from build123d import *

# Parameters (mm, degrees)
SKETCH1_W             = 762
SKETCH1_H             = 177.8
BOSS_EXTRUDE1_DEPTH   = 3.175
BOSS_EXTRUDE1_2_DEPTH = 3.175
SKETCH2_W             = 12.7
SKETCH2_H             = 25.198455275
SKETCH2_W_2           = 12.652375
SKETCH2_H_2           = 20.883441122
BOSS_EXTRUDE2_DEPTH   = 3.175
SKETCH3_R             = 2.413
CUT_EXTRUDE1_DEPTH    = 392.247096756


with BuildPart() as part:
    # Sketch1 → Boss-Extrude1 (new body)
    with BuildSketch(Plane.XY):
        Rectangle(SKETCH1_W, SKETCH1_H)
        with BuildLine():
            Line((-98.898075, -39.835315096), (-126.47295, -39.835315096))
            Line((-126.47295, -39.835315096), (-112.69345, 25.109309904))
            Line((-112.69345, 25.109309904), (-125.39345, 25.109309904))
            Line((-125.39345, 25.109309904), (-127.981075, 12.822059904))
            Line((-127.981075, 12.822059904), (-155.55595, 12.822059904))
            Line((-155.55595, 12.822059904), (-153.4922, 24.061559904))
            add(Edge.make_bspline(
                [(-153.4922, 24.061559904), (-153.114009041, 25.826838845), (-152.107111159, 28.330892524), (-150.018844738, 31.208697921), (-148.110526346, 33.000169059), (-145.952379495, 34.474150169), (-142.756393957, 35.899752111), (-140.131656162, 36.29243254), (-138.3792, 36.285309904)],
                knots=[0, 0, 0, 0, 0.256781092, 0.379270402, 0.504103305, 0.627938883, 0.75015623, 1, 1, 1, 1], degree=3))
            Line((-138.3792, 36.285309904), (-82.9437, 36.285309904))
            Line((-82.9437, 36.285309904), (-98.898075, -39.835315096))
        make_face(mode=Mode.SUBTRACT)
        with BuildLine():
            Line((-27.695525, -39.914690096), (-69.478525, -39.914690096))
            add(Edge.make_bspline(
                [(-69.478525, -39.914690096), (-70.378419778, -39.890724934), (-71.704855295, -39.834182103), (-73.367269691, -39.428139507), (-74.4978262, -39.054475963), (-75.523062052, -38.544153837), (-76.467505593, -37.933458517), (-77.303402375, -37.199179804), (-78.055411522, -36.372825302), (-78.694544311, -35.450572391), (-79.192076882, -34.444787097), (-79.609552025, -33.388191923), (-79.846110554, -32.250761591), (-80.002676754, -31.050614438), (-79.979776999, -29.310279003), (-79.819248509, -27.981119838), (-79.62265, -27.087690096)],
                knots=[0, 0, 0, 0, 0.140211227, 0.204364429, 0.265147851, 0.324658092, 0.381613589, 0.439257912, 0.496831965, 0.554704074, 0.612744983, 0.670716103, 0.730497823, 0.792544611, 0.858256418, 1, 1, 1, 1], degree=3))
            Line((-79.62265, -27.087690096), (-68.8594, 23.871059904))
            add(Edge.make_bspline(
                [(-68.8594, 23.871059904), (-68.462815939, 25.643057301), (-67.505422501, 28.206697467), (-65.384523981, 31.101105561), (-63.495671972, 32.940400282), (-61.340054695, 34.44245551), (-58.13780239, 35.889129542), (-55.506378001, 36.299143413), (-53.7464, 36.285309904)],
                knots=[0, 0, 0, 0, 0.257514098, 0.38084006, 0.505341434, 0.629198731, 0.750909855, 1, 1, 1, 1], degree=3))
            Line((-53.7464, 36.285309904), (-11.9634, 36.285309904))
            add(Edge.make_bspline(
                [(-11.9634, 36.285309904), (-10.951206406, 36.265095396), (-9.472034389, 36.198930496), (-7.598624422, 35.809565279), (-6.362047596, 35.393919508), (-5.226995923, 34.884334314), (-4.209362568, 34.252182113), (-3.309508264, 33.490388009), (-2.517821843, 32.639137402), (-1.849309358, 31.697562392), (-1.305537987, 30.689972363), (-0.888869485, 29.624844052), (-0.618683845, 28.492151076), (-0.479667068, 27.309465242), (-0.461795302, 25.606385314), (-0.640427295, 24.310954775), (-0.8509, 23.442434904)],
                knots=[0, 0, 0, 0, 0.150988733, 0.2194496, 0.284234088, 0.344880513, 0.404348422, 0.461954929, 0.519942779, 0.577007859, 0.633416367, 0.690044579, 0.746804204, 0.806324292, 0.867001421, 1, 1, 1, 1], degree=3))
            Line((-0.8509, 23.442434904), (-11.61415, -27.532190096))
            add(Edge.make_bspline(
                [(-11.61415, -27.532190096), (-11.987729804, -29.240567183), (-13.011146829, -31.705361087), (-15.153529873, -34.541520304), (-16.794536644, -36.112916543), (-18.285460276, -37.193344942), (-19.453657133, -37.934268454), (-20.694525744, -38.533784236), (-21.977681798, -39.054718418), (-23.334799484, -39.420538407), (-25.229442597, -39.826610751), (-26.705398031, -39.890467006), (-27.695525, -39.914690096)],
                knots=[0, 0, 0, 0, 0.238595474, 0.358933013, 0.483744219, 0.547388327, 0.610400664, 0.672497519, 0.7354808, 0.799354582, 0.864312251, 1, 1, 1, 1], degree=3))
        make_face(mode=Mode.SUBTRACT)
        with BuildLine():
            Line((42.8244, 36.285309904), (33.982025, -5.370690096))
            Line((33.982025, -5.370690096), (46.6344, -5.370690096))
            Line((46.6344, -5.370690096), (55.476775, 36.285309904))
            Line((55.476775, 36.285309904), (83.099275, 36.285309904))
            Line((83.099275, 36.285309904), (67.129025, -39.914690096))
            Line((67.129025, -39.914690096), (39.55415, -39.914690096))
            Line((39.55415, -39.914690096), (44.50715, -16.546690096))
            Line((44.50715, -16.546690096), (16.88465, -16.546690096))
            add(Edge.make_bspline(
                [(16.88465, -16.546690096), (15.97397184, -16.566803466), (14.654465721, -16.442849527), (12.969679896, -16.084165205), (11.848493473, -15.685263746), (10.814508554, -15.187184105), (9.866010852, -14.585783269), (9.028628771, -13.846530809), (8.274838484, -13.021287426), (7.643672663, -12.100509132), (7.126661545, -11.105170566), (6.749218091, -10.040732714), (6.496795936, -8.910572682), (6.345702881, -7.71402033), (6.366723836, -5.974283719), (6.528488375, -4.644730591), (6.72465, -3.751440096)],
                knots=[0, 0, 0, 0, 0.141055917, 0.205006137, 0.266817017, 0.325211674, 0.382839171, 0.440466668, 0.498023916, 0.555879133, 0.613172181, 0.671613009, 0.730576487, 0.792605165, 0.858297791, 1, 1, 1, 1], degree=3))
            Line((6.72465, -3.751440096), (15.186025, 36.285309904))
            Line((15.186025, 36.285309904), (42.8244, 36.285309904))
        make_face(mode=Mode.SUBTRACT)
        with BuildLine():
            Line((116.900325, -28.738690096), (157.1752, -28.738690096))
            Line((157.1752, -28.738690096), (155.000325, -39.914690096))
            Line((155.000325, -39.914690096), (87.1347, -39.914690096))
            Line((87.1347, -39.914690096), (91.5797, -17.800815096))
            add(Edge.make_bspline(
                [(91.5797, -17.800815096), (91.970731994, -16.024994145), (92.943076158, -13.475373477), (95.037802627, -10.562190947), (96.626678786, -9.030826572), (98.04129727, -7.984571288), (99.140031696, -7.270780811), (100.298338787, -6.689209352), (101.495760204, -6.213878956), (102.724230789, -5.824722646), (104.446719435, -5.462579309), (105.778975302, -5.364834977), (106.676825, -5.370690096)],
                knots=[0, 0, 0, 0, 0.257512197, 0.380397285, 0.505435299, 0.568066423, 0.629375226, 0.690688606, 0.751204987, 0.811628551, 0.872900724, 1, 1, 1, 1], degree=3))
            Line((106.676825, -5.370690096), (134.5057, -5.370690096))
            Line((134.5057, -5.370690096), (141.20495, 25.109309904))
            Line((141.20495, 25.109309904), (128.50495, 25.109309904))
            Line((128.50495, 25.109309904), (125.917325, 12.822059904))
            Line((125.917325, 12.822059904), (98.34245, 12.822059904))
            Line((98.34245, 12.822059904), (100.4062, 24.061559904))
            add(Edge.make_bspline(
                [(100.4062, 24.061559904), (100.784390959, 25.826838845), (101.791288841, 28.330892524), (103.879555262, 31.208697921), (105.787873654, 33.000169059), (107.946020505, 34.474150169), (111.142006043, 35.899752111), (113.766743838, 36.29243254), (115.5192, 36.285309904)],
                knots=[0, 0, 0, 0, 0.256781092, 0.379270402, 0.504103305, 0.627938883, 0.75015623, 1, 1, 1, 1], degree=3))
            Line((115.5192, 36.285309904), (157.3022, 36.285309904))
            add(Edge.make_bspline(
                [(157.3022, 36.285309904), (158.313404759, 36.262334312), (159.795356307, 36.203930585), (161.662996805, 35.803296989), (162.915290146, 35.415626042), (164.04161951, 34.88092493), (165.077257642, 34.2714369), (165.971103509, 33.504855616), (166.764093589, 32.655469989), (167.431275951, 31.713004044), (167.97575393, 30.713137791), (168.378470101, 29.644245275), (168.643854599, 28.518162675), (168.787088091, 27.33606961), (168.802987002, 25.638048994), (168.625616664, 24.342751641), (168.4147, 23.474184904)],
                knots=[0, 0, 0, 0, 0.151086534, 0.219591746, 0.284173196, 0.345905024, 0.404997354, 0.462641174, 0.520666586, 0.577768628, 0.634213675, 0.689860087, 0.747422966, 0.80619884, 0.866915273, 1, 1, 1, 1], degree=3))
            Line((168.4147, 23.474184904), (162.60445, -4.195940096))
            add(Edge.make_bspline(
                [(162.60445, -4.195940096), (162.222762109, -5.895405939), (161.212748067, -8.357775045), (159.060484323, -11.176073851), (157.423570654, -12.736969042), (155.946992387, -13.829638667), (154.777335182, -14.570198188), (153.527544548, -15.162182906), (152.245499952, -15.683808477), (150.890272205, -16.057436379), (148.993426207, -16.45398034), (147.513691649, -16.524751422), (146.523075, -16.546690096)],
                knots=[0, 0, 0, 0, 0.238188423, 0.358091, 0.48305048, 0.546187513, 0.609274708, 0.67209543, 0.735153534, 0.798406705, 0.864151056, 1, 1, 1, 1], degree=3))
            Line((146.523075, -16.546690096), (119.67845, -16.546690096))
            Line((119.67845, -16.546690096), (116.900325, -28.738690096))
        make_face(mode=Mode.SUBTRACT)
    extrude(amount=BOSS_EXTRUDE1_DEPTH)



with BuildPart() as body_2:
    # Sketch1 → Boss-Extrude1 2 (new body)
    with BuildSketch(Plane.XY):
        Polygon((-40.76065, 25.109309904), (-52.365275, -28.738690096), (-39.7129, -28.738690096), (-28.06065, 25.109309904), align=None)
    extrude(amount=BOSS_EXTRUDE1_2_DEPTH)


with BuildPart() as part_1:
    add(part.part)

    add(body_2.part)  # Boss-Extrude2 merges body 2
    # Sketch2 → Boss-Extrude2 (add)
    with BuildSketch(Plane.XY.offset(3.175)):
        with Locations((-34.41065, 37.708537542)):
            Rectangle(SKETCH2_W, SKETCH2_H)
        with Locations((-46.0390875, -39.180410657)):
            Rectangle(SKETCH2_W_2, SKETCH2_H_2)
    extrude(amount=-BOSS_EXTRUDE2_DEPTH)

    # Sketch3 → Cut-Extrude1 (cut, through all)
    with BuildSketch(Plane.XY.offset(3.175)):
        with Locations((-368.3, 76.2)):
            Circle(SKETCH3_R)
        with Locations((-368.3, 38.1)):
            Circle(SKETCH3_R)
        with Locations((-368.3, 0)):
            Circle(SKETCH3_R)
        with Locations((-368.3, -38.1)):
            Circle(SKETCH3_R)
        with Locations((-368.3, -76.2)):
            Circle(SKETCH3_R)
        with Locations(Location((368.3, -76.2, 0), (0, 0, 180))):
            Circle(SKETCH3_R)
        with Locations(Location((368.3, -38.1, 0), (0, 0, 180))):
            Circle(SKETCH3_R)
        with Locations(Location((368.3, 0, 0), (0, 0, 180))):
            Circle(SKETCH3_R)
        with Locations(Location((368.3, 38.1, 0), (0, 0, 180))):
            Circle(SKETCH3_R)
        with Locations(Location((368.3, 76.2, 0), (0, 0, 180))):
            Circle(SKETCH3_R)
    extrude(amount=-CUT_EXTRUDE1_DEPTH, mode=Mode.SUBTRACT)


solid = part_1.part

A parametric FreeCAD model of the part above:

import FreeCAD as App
import Part
import Sketcher
from FreeCAD import Vector
Q = App.Units.Quantity

doc = App.newDocument("Part")
body = doc.addObject("PartDesign::Body", "Body")

# Sketch on XY plane
sketch1 = body.newObject("Sketcher::SketchObject", "Sketch")
sketch1.AttachmentSupport = (doc.getObject("XY_Plane"), [""])
sketch1.MapMode = "FlatFace"
sketch1.addGeometry(Part.LineSegment(Vector(-381, 88.9, 0), Vector(-381, -88.9, 0)), False)
sketch1.addGeometry(Part.LineSegment(Vector(-381, -88.9, 0), Vector(381, -88.9, 0)), False)
sketch1.addGeometry(Part.LineSegment(Vector(381, -88.9, 0), Vector(381, 88.9, 0)), False)
sketch1.addGeometry(Part.LineSegment(Vector(381, 88.9, 0), Vector(-381, 88.9, 0)), False)
sketch1.addGeometry(Part.LineSegment(Vector(15.186025, 36.28531, 0), Vector(42.8244, 36.28531, 0)), False)
sketch1.addGeometry(Part.LineSegment(Vector(42.8244, 36.28531, 0), Vector(33.982025, -5.37069, 0)), False)
sketch1.addGeometry(Part.LineSegment(Vector(33.982025, -5.37069, 0), Vector(46.6344, -5.37069, 0)), False)
sketch1.addGeometry(Part.LineSegment(Vector(46.6344, -5.37069, 0), Vector(55.476775, 36.28531, 0)), False)
sketch1.addGeometry(Part.LineSegment(Vector(55.476775, 36.28531, 0), Vector(83.099275, 36.28531, 0)), False)
sketch1.addGeometry(Part.LineSegment(Vector(83.099275, 36.28531, 0), Vector(67.129025, -39.91469, 0)), False)
sketch1.addGeometry(Part.LineSegment(Vector(67.129025, -39.91469, 0), Vector(39.55415, -39.91469, 0)), False)
sketch1.addGeometry(Part.LineSegment(Vector(39.55415, -39.91469, 0), Vector(44.50715, -16.54669, 0)), False)
sketch1.addGeometry(Part.LineSegment(Vector(44.50715, -16.54669, 0), Vector(16.88465, -16.54669, 0)), False)
sketch1.addGeometry(Part.BSplineCurve([Vector(16.88465, -16.54669, 0), Vector(15.973972, -16.566803, 0), Vector(14.654466, -16.44285, 0), Vector(12.96968, -16.084165, 0), Vector(11.848493, -15.685264, 0), Vector(10.814509, -15.187184, 0), Vector(9.866011, -14.585783, 0), Vector(9.028629, -13.846531, 0), Vector(8.274838, -13.021287, 0), Vector(7.643673, -12.100509, 0), Vector(7.126662, -11.105171, 0), Vector(6.749218, -10.040733, 0), Vector(6.496796, -8.910573, 0), Vector(6.345703, -7.71402, 0), Vector(6.366724, -5.974284, 0), Vector(6.528488, -4.644731, 0), Vector(6.72465, -3.75144, 0)], [4, 1, 1, 1, 1, 1, 1, 1, 1, 1, 1, 1, 1, 1, 4], [0, 0.141055917, 0.205006137, 0.266817017, 0.325211674, 0.382839171, 0.440466668, 0.498023916, 0.555879133, 0.613172181, 0.671613009, 0.730576487, 0.792605165, 0.858297791, 1], False, 3, [1, 1, 1, 1, 1, 1, 1, 1, 1, 1, 1, 1, 1, 1, 1, 1, 1], False), False)
sketch1.addGeometry(Part.LineSegment(Vector(6.72465, -3.75144, 0), Vector(15.186025, 36.28531, 0)), False)
sketch1.addGeometry(Part.LineSegment(Vector(119.67845, -16.54669, 0), Vector(116.900325, -28.73869, 0)), False)
sketch1.addGeometry(Part.LineSegment(Vector(116.900325, -28.73869, 0), Vector(157.1752, -28.73869, 0)), False)
sketch1.addGeometry(Part.LineSegment(Vector(157.1752, -28.73869, 0), Vector(155.000325, -39.91469, 0)), False)
sketch1.addGeometry(Part.LineSegment(Vector(155.000325, -39.91469, 0), Vector(87.1347, -39.91469, 0)), False)
sketch1.addGeometry(Part.LineSegment(Vector(87.1347, -39.91469, 0), Vector(91.5797, -17.800815, 0)), False)
sketch1.addGeometry(Part.BSplineCurve([Vector(91.5797, -17.800815, 0), Vector(91.970732, -16.024994, 0), Vector(92.943076, -13.475373, 0), Vector(95.037803, -10.562191, 0), Vector(96.626679, -9.030827, 0), Vector(98.041297, -7.984571, 0), Vector(99.140032, -7.270781, 0), Vector(100.298339, -6.689209, 0), Vector(101.49576, -6.213879, 0), Vector(102.724231, -5.824723, 0), Vector(104.446719, -5.462579, 0), Vector(105.778975, -5.364835, 0), Vector(106.676825, -5.37069, 0)], [4, 1, 1, 1, 1, 1, 1, 1, 1, 1, 4], [0, 0.257512197, 0.380397285, 0.505435299, 0.568066423, 0.629375226, 0.690688606, 0.751204987, 0.811628551, 0.872900724, 1], False, 3, [1, 1, 1, 1, 1, 1, 1, 1, 1, 1, 1, 1, 1], False), False)
sketch1.addGeometry(Part.LineSegment(Vector(106.676825, -5.37069, 0), Vector(134.5057, -5.37069, 0)), False)
sketch1.addGeometry(Part.LineSegment(Vector(134.5057, -5.37069, 0), Vector(141.20495, 25.10931, 0)), False)
sketch1.addGeometry(Part.LineSegment(Vector(141.20495, 25.10931, 0), Vector(128.50495, 25.10931, 0)), False)
sketch1.addGeometry(Part.LineSegment(Vector(128.50495, 25.10931, 0), Vector(125.917325, 12.82206, 0)), False)
sketch1.addGeometry(Part.LineSegment(Vector(125.917325, 12.82206, 0), Vector(98.34245, 12.82206, 0)), False)
sketch1.addGeometry(Part.LineSegment(Vector(98.34245, 12.82206, 0), Vector(100.4062, 24.06156, 0)), False)
sketch1.addGeometry(Part.BSplineCurve([Vector(100.4062, 24.06156, 0), Vector(100.784391, 25.826839, 0), Vector(101.791289, 28.330893, 0), Vector(103.879555, 31.208698, 0), Vector(105.787874, 33.000169, 0), Vector(107.946021, 34.47415, 0), Vector(111.142006, 35.899752, 0), Vector(113.766744, 36.292433, 0), Vector(115.5192, 36.28531, 0)], [4, 1, 1, 1, 1, 1, 4], [0, 0.256781092, 0.379270402, 0.504103305, 0.627938883, 0.75015623, 1], False, 3, [1, 1, 1, 1, 1, 1, 1, 1, 1], False), False)
sketch1.addGeometry(Part.LineSegment(Vector(115.5192, 36.28531, 0), Vector(157.3022, 36.28531, 0)), False)
sketch1.addGeometry(Part.BSplineCurve([Vector(157.3022, 36.28531, 0), Vector(158.313405, 36.262334, 0), Vector(159.795356, 36.203931, 0), Vector(161.662997, 35.803297, 0), Vector(162.91529, 35.415626, 0), Vector(164.04162, 34.880925, 0), Vector(165.077258, 34.271437, 0), Vector(165.971104, 33.504856, 0), Vector(166.764094, 32.65547, 0), Vector(167.431276, 31.713004, 0), Vector(167.975754, 30.713138, 0), Vector(168.37847, 29.644245, 0), Vector(168.643855, 28.518163, 0), Vector(168.787088, 27.33607, 0), Vector(168.802987, 25.638049, 0), Vector(168.625617, 24.342752, 0), Vector(168.4147, 23.474185, 0)], [4, 1, 1, 1, 1, 1, 1, 1, 1, 1, 1, 1, 1, 1, 4], [0, 0.151086534, 0.219591746, 0.284173196, 0.345905024, 0.404997354, 0.462641174, 0.520666586, 0.577768628, 0.634213675, 0.689860087, 0.747422966, 0.80619884, 0.866915273, 1], False, 3, [1, 1, 1, 1, 1, 1, 1, 1, 1, 1, 1, 1, 1, 1, 1, 1, 1], False), False)
sketch1.addGeometry(Part.LineSegment(Vector(168.4147, 23.474185, 0), Vector(162.60445, -4.19594, 0)), False)
sketch1.addGeometry(Part.BSplineCurve([Vector(162.60445, -4.19594, 0), Vector(162.222762, -5.895406, 0), Vector(161.212748, -8.357775, 0), Vector(159.060484, -11.176074, 0), Vector(157.423571, -12.736969, 0), Vector(155.946992, -13.829639, 0), Vector(154.777335, -14.570198, 0), Vector(153.527545, -15.162183, 0), Vector(152.2455, -15.683808, 0), Vector(150.890272, -16.057436, 0), Vector(148.993426, -16.45398, 0), Vector(147.513692, -16.524751, 0), Vector(146.523075, -16.54669, 0)], [4, 1, 1, 1, 1, 1, 1, 1, 1, 1, 4], [0, 0.238188423, 0.358091, 0.48305048, 0.546187513, 0.609274708, 0.67209543, 0.735153534, 0.798406705, 0.864151056, 1], False, 3, [1, 1, 1, 1, 1, 1, 1, 1, 1, 1, 1, 1, 1], False), False)
sketch1.addGeometry(Part.LineSegment(Vector(146.523075, -16.54669, 0), Vector(119.67845, -16.54669, 0)), False)
sketch1.addGeometry(Part.LineSegment(Vector(-82.9437, 36.28531, 0), Vector(-98.898075, -39.835315, 0)), False)
sketch1.addGeometry(Part.LineSegment(Vector(-98.898075, -39.835315, 0), Vector(-126.47295, -39.835315, 0)), False)
sketch1.addGeometry(Part.LineSegment(Vector(-126.47295, -39.835315, 0), Vector(-112.69345, 25.10931, 0)), False)
sketch1.addGeometry(Part.LineSegment(Vector(-112.69345, 25.10931, 0), Vector(-125.39345, 25.10931, 0)), False)
sketch1.addGeometry(Part.LineSegment(Vector(-125.39345, 25.10931, 0), Vector(-127.981075, 12.82206, 0)), False)
sketch1.addGeometry(Part.LineSegment(Vector(-127.981075, 12.82206, 0), Vector(-155.55595, 12.82206, 0)), False)
sketch1.addGeometry(Part.LineSegment(Vector(-155.55595, 12.82206, 0), Vector(-153.4922, 24.06156, 0)), False)
sketch1.addGeometry(Part.BSplineCurve([Vector(-153.4922, 24.06156, 0), Vector(-153.114009, 25.826839, 0), Vector(-152.107111, 28.330893, 0), Vector(-150.018845, 31.208698, 0), Vector(-148.110526, 33.000169, 0), Vector(-145.952379, 34.47415, 0), Vector(-142.756394, 35.899752, 0), Vector(-140.131656, 36.292433, 0), Vector(-138.3792, 36.28531, 0)], [4, 1, 1, 1, 1, 1, 4], [0, 0.256781092, 0.379270402, 0.504103305, 0.627938883, 0.75015623, 1], False, 3, [1, 1, 1, 1, 1, 1, 1, 1, 1], False), False)
sketch1.addGeometry(Part.LineSegment(Vector(-138.3792, 36.28531, 0), Vector(-82.9437, 36.28531, 0)), False)
sketch1.addGeometry(Part.BSplineCurve([Vector(-11.61415, -27.53219, 0), Vector(-11.98773, -29.240567, 0), Vector(-13.011147, -31.705361, 0), Vector(-15.15353, -34.54152, 0), Vector(-16.794537, -36.112917, 0), Vector(-18.28546, -37.193345, 0), Vector(-19.453657, -37.934268, 0), Vector(-20.694526, -38.533784, 0), Vector(-21.977682, -39.054718, 0), Vector(-23.334799, -39.420538, 0), Vector(-25.229443, -39.826611, 0), Vector(-26.705398, -39.890467, 0), Vector(-27.695525, -39.91469, 0)], [4, 1, 1, 1, 1, 1, 1, 1, 1, 1, 4], [0, 0.238595474, 0.358933013, 0.483744219, 0.547388327, 0.610400664, 0.672497519, 0.7354808, 0.799354582, 0.864312251, 1], False, 3, [1, 1, 1, 1, 1, 1, 1, 1, 1, 1, 1, 1, 1], False), False)
sketch1.addGeometry(Part.LineSegment(Vector(-27.695525, -39.91469, 0), Vector(-69.478525, -39.91469, 0)), False)
sketch1.addGeometry(Part.BSplineCurve([Vector(-69.478525, -39.91469, 0), Vector(-70.37842, -39.890725, 0), Vector(-71.704855, -39.834182, 0), Vector(-73.36727, -39.42814, 0), Vector(-74.497826, -39.054476, 0), Vector(-75.523062, -38.544154, 0), Vector(-76.467506, -37.933459, 0), Vector(-77.303402, -37.19918, 0), Vector(-78.055412, -36.372825, 0), Vector(-78.694544, -35.450572, 0), Vector(-79.192077, -34.444787, 0), Vector(-79.609552, -33.388192, 0), Vector(-79.846111, -32.250762, 0), Vector(-80.002677, -31.050614, 0), Vector(-79.979777, -29.310279, 0), Vector(-79.819249, -27.98112, 0), Vector(-79.62265, -27.08769, 0)], [4, 1, 1, 1, 1, 1, 1, 1, 1, 1, 1, 1, 1, 1, 4], [0, 0.140211227, 0.204364429, 0.265147851, 0.324658092, 0.381613589, 0.439257912, 0.496831965, 0.554704074, 0.612744983, 0.670716103, 0.730497823, 0.792544611, 0.858256418, 1], False, 3, [1, 1, 1, 1, 1, 1, 1, 1, 1, 1, 1, 1, 1, 1, 1, 1, 1], False), False)
sketch1.addGeometry(Part.LineSegment(Vector(-79.62265, -27.08769, 0), Vector(-68.8594, 23.87106, 0)), False)
sketch1.addGeometry(Part.BSplineCurve([Vector(-68.8594, 23.87106, 0), Vector(-68.462816, 25.643057, 0), Vector(-67.505423, 28.206697, 0), Vector(-65.384524, 31.101106, 0), Vector(-63.495672, 32.9404, 0), Vector(-61.340055, 34.442456, 0), Vector(-58.137802, 35.88913, 0), Vector(-55.506378, 36.299143, 0), Vector(-53.7464, 36.28531, 0)], [4, 1, 1, 1, 1, 1, 4], [0, 0.257514098, 0.38084006, 0.505341434, 0.629198731, 0.750909855, 1], False, 3, [1, 1, 1, 1, 1, 1, 1, 1, 1], False), False)
sketch1.addGeometry(Part.LineSegment(Vector(-53.7464, 36.28531, 0), Vector(-11.9634, 36.28531, 0)), False)
sketch1.addGeometry(Part.BSplineCurve([Vector(-11.9634, 36.28531, 0), Vector(-10.951206, 36.265095, 0), Vector(-9.472034, 36.19893, 0), Vector(-7.598624, 35.809565, 0), Vector(-6.362048, 35.39392, 0), Vector(-5.226996, 34.884334, 0), Vector(-4.209363, 34.252182, 0), Vector(-3.309508, 33.490388, 0), Vector(-2.517822, 32.639137, 0), Vector(-1.849309, 31.697562, 0), Vector(-1.305538, 30.689972, 0), Vector(-0.888869, 29.624844, 0), Vector(-0.618684, 28.492151, 0), Vector(-0.479667, 27.309465, 0), Vector(-0.461795, 25.606385, 0), Vector(-0.640427, 24.310955, 0), Vector(-0.8509, 23.442435, 0)], [4, 1, 1, 1, 1, 1, 1, 1, 1, 1, 1, 1, 1, 1, 4], [0, 0.150988733, 0.2194496, 0.284234088, 0.344880513, 0.404348422, 0.461954929, 0.519942779, 0.577007859, 0.633416367, 0.690044579, 0.746804204, 0.806324292, 0.867001421, 1], False, 3, [1, 1, 1, 1, 1, 1, 1, 1, 1, 1, 1, 1, 1, 1, 1, 1, 1], False), False)
sketch1.addGeometry(Part.LineSegment(Vector(-0.8509, 23.442435, 0), Vector(-11.61415, -27.53219, 0)), False)
sketch1.addConstraint(Sketcher.Constraint("Block", 13))
sketch1.addConstraint(Sketcher.Constraint("Block", 20))
sketch1.addConstraint(Sketcher.Constraint("Block", 27))
sketch1.addConstraint(Sketcher.Constraint("Block", 29))
sketch1.addConstraint(Sketcher.Constraint("Block", 31))
sketch1.addConstraint(Sketcher.Constraint("Block", 40))
sketch1.addConstraint(Sketcher.Constraint("Block", 42))
sketch1.addConstraint(Sketcher.Constraint("Block", 44))
sketch1.addConstraint(Sketcher.Constraint("Block", 46))
sketch1.addConstraint(Sketcher.Constraint("Block", 48))
sketch1.addConstraint(Sketcher.Constraint("Coincident", 0, 2, 1, 1))
sketch1.addConstraint(Sketcher.Constraint("Coincident", 1, 2, 2, 1))
sketch1.addConstraint(Sketcher.Constraint("Coincident", 2, 2, 3, 1))
sketch1.addConstraint(Sketcher.Constraint("Coincident", 3, 2, 0, 1))
sketch1.addConstraint(Sketcher.Constraint("Coincident", 4, 2, 5, 1))
sketch1.addConstraint(Sketcher.Constraint("Coincident", 5, 2, 6, 1))
sketch1.addConstraint(Sketcher.Constraint("Coincident", 6, 2, 7, 1))
sketch1.addConstraint(Sketcher.Constraint("Coincident", 7, 2, 8, 1))
sketch1.addConstraint(Sketcher.Constraint("Coincident", 8, 2, 9, 1))
sketch1.addConstraint(Sketcher.Constraint("Coincident", 9, 2, 10, 1))
sketch1.addConstraint(Sketcher.Constraint("Coincident", 10, 2, 11, 1))
sketch1.addConstraint(Sketcher.Constraint("Coincident", 11, 2, 12, 1))
sketch1.addConstraint(Sketcher.Constraint("Coincident", 12, 2, 13, 1))
sketch1.addConstraint(Sketcher.Constraint("Coincident", 13, 2, 14, 1))
sketch1.addConstraint(Sketcher.Constraint("Coincident", 14, 2, 4, 1))
sketch1.addConstraint(Sketcher.Constraint("Coincident", 15, 2, 16, 1))
sketch1.addConstraint(Sketcher.Constraint("Coincident", 16, 2, 17, 1))
sketch1.addConstraint(Sketcher.Constraint("Coincident", 17, 2, 18, 1))
sketch1.addConstraint(Sketcher.Constraint("Coincident", 18, 2, 19, 1))
sketch1.addConstraint(Sketcher.Constraint("Coincident", 19, 2, 20, 1))
sketch1.addConstraint(Sketcher.Constraint("Coincident", 20, 2, 21, 1))
sketch1.addConstraint(Sketcher.Constraint("Coincident", 21, 2, 22, 1))
sketch1.addConstraint(Sketcher.Constraint("Coincident", 22, 2, 23, 1))
sketch1.addConstraint(Sketcher.Constraint("Coincident", 23, 2, 24, 1))
sketch1.addConstraint(Sketcher.Constraint("Coincident", 24, 2, 25, 1))
sketch1.addConstraint(Sketcher.Constraint("Coincident", 25, 2, 26, 1))
sketch1.addConstraint(Sketcher.Constraint("Coincident", 26, 2, 27, 1))
sketch1.addConstraint(Sketcher.Constraint("Coincident", 27, 2, 28, 1))
sketch1.addConstraint(Sketcher.Constraint("Coincident", 28, 2, 29, 1))
sketch1.addConstraint(Sketcher.Constraint("Coincident", 29, 2, 30, 1))
sketch1.addConstraint(Sketcher.Constraint("Coincident", 30, 2, 31, 1))
sketch1.addConstraint(Sketcher.Constraint("Coincident", 31, 2, 32, 1))
sketch1.addConstraint(Sketcher.Constraint("Coincident", 32, 2, 15, 1))
sketch1.addConstraint(Sketcher.Constraint("Coincident", 33, 2, 34, 1))
sketch1.addConstraint(Sketcher.Constraint("Coincident", 34, 2, 35, 1))
sketch1.addConstraint(Sketcher.Constraint("Coincident", 35, 2, 36, 1))
sketch1.addConstraint(Sketcher.Constraint("Coincident", 36, 2, 37, 1))
sketch1.addConstraint(Sketcher.Constraint("Coincident", 37, 2, 38, 1))
sketch1.addConstraint(Sketcher.Constraint("Coincident", 38, 2, 39, 1))
sketch1.addConstraint(Sketcher.Constraint("Coincident", 39, 2, 40, 1))
sketch1.addConstraint(Sketcher.Constraint("Coincident", 40, 2, 41, 1))
sketch1.addConstraint(Sketcher.Constraint("Coincident", 41, 2, 33, 1))
sketch1.addConstraint(Sketcher.Constraint("Coincident", 42, 2, 43, 1))
sketch1.addConstraint(Sketcher.Constraint("Coincident", 43, 2, 44, 1))
sketch1.addConstraint(Sketcher.Constraint("Coincident", 44, 2, 45, 1))
sketch1.addConstraint(Sketcher.Constraint("Coincident", 45, 2, 46, 1))
sketch1.addConstraint(Sketcher.Constraint("Coincident", 46, 2, 47, 1))
sketch1.addConstraint(Sketcher.Constraint("Coincident", 47, 2, 48, 1))
sketch1.addConstraint(Sketcher.Constraint("Coincident", 48, 2, 49, 1))
sketch1.addConstraint(Sketcher.Constraint("Coincident", 49, 2, 42, 1))
sketch1.addConstraint(Sketcher.Constraint("Vertical", 0))
sketch1.addConstraint(Sketcher.Constraint("Horizontal", 1))
sketch1.addConstraint(Sketcher.Constraint("Vertical", 2))
sketch1.addConstraint(Sketcher.Constraint("Horizontal", 3))
sketch1.addConstraint(Sketcher.Constraint("Horizontal", 4))
sketch1.addConstraint(Sketcher.Constraint("Horizontal", 6))
sketch1.addConstraint(Sketcher.Constraint("Horizontal", 8))
sketch1.addConstraint(Sketcher.Constraint("Horizontal", 10))
sketch1.addConstraint(Sketcher.Constraint("Horizontal", 12))
sketch1.addConstraint(Sketcher.Constraint("Horizontal", 16))
sketch1.addConstraint(Sketcher.Constraint("Horizontal", 18))
sketch1.addConstraint(Sketcher.Constraint("Horizontal", 21))
sketch1.addConstraint(Sketcher.Constraint("Horizontal", 23))
sketch1.addConstraint(Sketcher.Constraint("Horizontal", 25))
sketch1.addConstraint(Sketcher.Constraint("Horizontal", 32))
sketch1.addConstraint(Sketcher.Constraint("Horizontal", 34))
sketch1.addConstraint(Sketcher.Constraint("Horizontal", 36))
sketch1.addConstraint(Sketcher.Constraint("Horizontal", 38))
sketch1.addConstraint(Sketcher.Constraint("Horizontal", 41))
sketch1.addConstraint(Sketcher.Constraint("DistanceX", 1, 1, 1, 2, Q("30 in")))
sketch1.addConstraint(Sketcher.Constraint("DistanceY", 0, 2, 0, 1, Q("7 in")))
sketch1.addConstraint(Sketcher.Constraint("DistanceX", 23, 2, 23, 1, Q("0.5 in")))
sketch1.addConstraint(Sketcher.Constraint("DistanceX", 36, 2, 36, 1, Q("0.5 in")))
sketch1.addConstraint(Sketcher.Constraint("DistanceX", 0, 2, -1, 1, Q("15 in")))
sketch1.addConstraint(Sketcher.Constraint("DistanceY", 9, 2, 7, 2, Q("3 in")))
sketch1.addConstraint(Sketcher.Constraint("DistanceY", 9, 2, 4, 2, Q("3 in")))
sketch1.addConstraint(Sketcher.Constraint("DistanceY", 17, 2, 8, 2, Q("3 in")))
sketch1.addConstraint(Sketcher.Constraint("DistanceY", 0, 2, -1, 1, Q("3.5 in")))
sketch1.addConstraint(Sketcher.Constraint("DistanceX", 15, 2, 17, 2, Q("1.5 in")))
sketch1.addConstraint(Sketcher.Constraint("DistanceY", 21, 2, 22, 2, Q("1.2 in")))
sketch1.addConstraint(Sketcher.Constraint("DistanceY", 5, 2, 35, 2, Q("1.2 in")))
sketch1.addConstraint(Sketcher.Constraint("DistanceX", 18, 2, 18, 1, Q("2.671875 in")))
sketch1.addConstraint(Sketcher.Constraint("DistanceY", 5, 2, 4, 2, Q("1.64 in")))
sketch1.addConstraint(Sketcher.Constraint("DistanceX", 4, 2, 6, 2, Q("0.15 in")))
sketch1.addConstraint(Sketcher.Constraint("DistanceY", 11, 2, 6, 2, Q("0.44 in")))
sketch1.addConstraint(Sketcher.Constraint("DistanceX", 14, 2, 5, 2, Q("0.74 in")))
sketch1.addConstraint(Sketcher.Constraint("DistanceY", 9, 2, 15, 2, Q("0.44 in")))
sketch1.addConstraint(Sketcher.Constraint("DistanceX", 19, 2, 21, 2, Q("1.69 in")))
sketch1.addConstraint(Sketcher.Constraint("DistanceY", 30, 2, 24, 2, Q("0.67 in")))
sketch1.addConstraint(Sketcher.Constraint("DistanceX", 25, 2, 32, 2, Q("0.84 in")))
sketch1.addConstraint(Sketcher.Constraint("DistanceX", 8, 1, 8, 2, Q("1.0875 in")))
sketch1.addConstraint(Sketcher.Constraint("DistanceX", 12, 2, 12, 1, Q("1.0875 in")))
sketch1.addConstraint(Sketcher.Constraint("DistanceX", 41, 1, 41, 2, Q("2.1825 in")))
sketch1.addConstraint(Sketcher.Constraint("DistanceX", -1, 1, 4, 2, Q("1.686 in")))
sketch1.addConstraint(Sketcher.Constraint("DistanceX", -1, 1, 16, 2, Q("6.188 in")))
sketch1.addConstraint(Sketcher.Constraint("DistanceX", 5, 2, 9, 2, Q("1.305 in")))
sketch1.addConstraint(Sketcher.Constraint("DistanceX", 10, 2, 11, 2, Q("0.195 in")))
sketch1.addConstraint(Sketcher.Constraint("DistanceX", 11, 2, 9, 2, Q("0.890625 in")))
sketch1.addConstraint(Sketcher.Constraint("DistanceX", 18, 2, 19, 2, Q("0.175 in")))
sketch1.addConstraint(Sketcher.Constraint("DistanceX", 15, 2, 24, 2, Q("0.355 in")))
sketch1.addConstraint(Sketcher.Constraint("DistanceX", 25, 2, 23, 2, Q("1.1875 in")))
sketch1.addConstraint(Sketcher.Constraint("DistanceX", 15, 2, 32, 2, Q("0.109375 in")))
sketch1.addConstraint(Sketcher.Constraint("DistanceX", 34, 2, 12, 2, Q("5.644 in")))
sketch1.addConstraint(Sketcher.Constraint("DistanceX", 37, 2, 33, 2, Q("1.145 in")))
sketch1.addConstraint(Sketcher.Constraint("DistanceX", 38, 2, 36, 2, Q("1.1875 in")))
sketch1.addConstraint(Sketcher.Constraint("DistanceX", 38, 2, 34, 2, Q("1.145 in")))
sketch1.addConstraint(Sketcher.Constraint("DistanceY", 34, 2, 39, 2, Q("2.515625 in")))
sketch1.addConstraint(Sketcher.Constraint("DistanceY", 37, 2, 45, 2, Q("0.435 in")))
sketch1.addConstraint(Sketcher.Constraint("DistanceX", 33, 2, 14, 2, Q("4.4915 in")))
sketch1.addConstraint(Sketcher.Constraint("Distance", 7, Q("42.584151 mm")))
pad1 = body.newObject("PartDesign::Pad", "Pad")
pad1.Profile = sketch1
pad1.Length = Q("0.125 in")
body2 = doc.addObject("PartDesign::Body", "Body001")

# Sketch on XY plane
sketch2 = body2.newObject("Sketcher::SketchObject", "Sketch001")
sketch2.AttachmentSupport = (doc.getObject("XY_Plane001"), [""])
sketch2.MapMode = "FlatFace"
sketch2.addGeometry(Part.LineSegment(Vector(-41, 25, 0), Vector(-52, -29, 0)), False)
sketch2.addGeometry(Part.LineSegment(Vector(-52, -29, 0), Vector(-40, -29, 0)), False)
sketch2.addGeometry(Part.LineSegment(Vector(-40, -29, 0), Vector(-28, 25, 0)), False)
sketch2.addGeometry(Part.LineSegment(Vector(-28, 25, 0), Vector(-41, 25, 0)), False)
sketch2.addConstraint(Sketcher.Constraint("Coincident", 0, 2, 1, 1))
sketch2.addConstraint(Sketcher.Constraint("Coincident", 1, 2, 2, 1))
sketch2.addConstraint(Sketcher.Constraint("Coincident", 2, 2, 3, 1))
sketch2.addConstraint(Sketcher.Constraint("Coincident", 3, 2, 0, 1))
sketch2.addConstraint(Sketcher.Constraint("Horizontal", 1))
sketch2.addConstraint(Sketcher.Constraint("Horizontal", 3))
sketch2.addConstraint(Sketcher.Constraint("DistanceX", 3, 2, 3, 1, Q("0.5 in")))
sketch2.addConstraint(Sketcher.Constraint("DistanceY", 1, 2, 2, 2, Q("2.12 in")))
sketch2.addConstraint(Sketcher.Constraint("DistanceX", 1, 2, -1, 1, Q("1.5635 in")))
sketch2.addConstraint(Sketcher.Constraint("Distance", 2, Q("55.094301 mm")))
sketch2.addConstraint(Sketcher.Constraint("Distance", 0, Q("55.084248 mm")))
sketch2.addConstraint(Sketcher.Constraint("DistanceY", 0, 2, -1, 1, Q("28.73869 mm")))
pad2 = body2.newObject("PartDesign::Pad", "Pad001")
pad2.Profile = sketch2
pad2.Length = Q("0.125 in")
body.AllowCompound = True
doc.recompute()

boolean = body.newObject("PartDesign::Boolean", "Boolean")
boolean.Type = "Fuse"
boolean.addObjects([body2])

# Sketch on XY plane
sketch3 = body.newObject("Sketcher::SketchObject", "Sketch002")
sketch3.AttachmentSupport = (doc.getObject("XY_Plane"), [""])
sketch3.MapMode = "FlatFace"
sketch3.AttachmentOffset = App.Placement(Vector(0, 0, 0.125 * 25.4), App.Rotation())
sketch3.addGeometry(Part.LineSegment(Vector(-41, 50, 0), Vector(-41, 25, 0)), False)
sketch3.addGeometry(Part.LineSegment(Vector(-41, 25, 0), Vector(-28, 25, 0)), False)
sketch3.addGeometry(Part.LineSegment(Vector(-28, 25, 0), Vector(-28, 50, 0)), False)
sketch3.addGeometry(Part.LineSegment(Vector(-28, 50, 0), Vector(-41, 50, 0)), False)
sketch3.addGeometry(Part.LineSegment(Vector(-52, -29, 0), Vector(-52, -50, 0)), False)
sketch3.addGeometry(Part.LineSegment(Vector(-52, -50, 0), Vector(-40, -50, 0)), False)
sketch3.addGeometry(Part.LineSegment(Vector(-40, -50, 0), Vector(-40, -29, 0)), False)
sketch3.addGeometry(Part.LineSegment(Vector(-40, -29, 0), Vector(-52, -29, 0)), False)
sketch3.addConstraint(Sketcher.Constraint("Coincident", 0, 2, 1, 1))
sketch3.addConstraint(Sketcher.Constraint("Coincident", 1, 2, 2, 1))
sketch3.addConstraint(Sketcher.Constraint("Coincident", 2, 2, 3, 1))
sketch3.addConstraint(Sketcher.Constraint("Coincident", 3, 2, 0, 1))
sketch3.addConstraint(Sketcher.Constraint("Coincident", 4, 2, 5, 1))
sketch3.addConstraint(Sketcher.Constraint("Coincident", 5, 2, 6, 1))
sketch3.addConstraint(Sketcher.Constraint("Coincident", 6, 2, 7, 1))
sketch3.addConstraint(Sketcher.Constraint("Coincident", 7, 2, 4, 1))
sketch3.addConstraint(Sketcher.Constraint("Vertical", 0))
sketch3.addConstraint(Sketcher.Constraint("Horizontal", 1))
sketch3.addConstraint(Sketcher.Constraint("Vertical", 2))
sketch3.addConstraint(Sketcher.Constraint("Horizontal", 3))
sketch3.addConstraint(Sketcher.Constraint("Vertical", 4))
sketch3.addConstraint(Sketcher.Constraint("Horizontal", 5))
sketch3.addConstraint(Sketcher.Constraint("Vertical", 6))
sketch3.addConstraint(Sketcher.Constraint("Horizontal", 7))
sketch3.addConstraint(Sketcher.Constraint("DistanceX", 1, 1, 1, 2, Q("0.5 in")))
sketch3.addConstraint(Sketcher.Constraint("DistanceY", 6, 2, 0, 2, Q("2.12 in")))
sketch3.addConstraint(Sketcher.Constraint("DistanceX", 5, 2, -1, 1, Q("1.5635 in")))
sketch3.addConstraint(Sketcher.Constraint("DistanceY", 4, 2, 4, 1, Q("20.883441 mm")))
sketch3.addConstraint(Sketcher.Constraint("DistanceX", 5, 1, 5, 2, Q("12.652375 mm")))
sketch3.addConstraint(Sketcher.Constraint("DistanceY", 0, 2, 0, 1, Q("25.198455 mm")))
sketch3.addConstraint(Sketcher.Constraint("DistanceX", 0, 2, -1, 1, Q("40.76065 mm")))
sketch3.addConstraint(Sketcher.Constraint("DistanceY", -1, 1, 0, 2, Q("25.10931 mm")))
pad3 = body.newObject("PartDesign::Pad", "Pad002")
pad3.Profile = sketch3
pad3.Length = Q("0.125 in")
pad3.Reversed = True

# Sketch on XY plane
sketch4 = body.newObject("Sketcher::SketchObject", "Sketch003")
sketch4.AttachmentSupport = (doc.getObject("XY_Plane"), [""])
sketch4.MapMode = "FlatFace"
sketch4.AttachmentOffset = App.Placement(Vector(0, 0, 0.125 * 25.4), App.Rotation())
sketch4.addGeometry(Part.Circle(Vector(-368.3, 76.2, 0), Vector(0, 0, 1), 2.4), False)
sketch4.addGeometry(Part.Circle(Vector(-368.3, 38.1, 0), Vector(0, 0, 1), 2.4), False)
sketch4.addGeometry(Part.Circle(Vector(-368.3, 0, 0), Vector(0, 0, 1), 2.4), False)
sketch4.addGeometry(Part.Circle(Vector(-368.3, -38.1, 0), Vector(0, 0, 1), 2.4), False)
sketch4.addGeometry(Part.Circle(Vector(-368.3, -76.2, 0), Vector(0, 0, 1), 2.4), False)
sketch4.addGeometry(Part.Circle(Vector(368.3, -76.2, 0), Vector(0, 0, 1), 2.4), False)
sketch4.addGeometry(Part.Circle(Vector(368.3, -38.1, 0), Vector(0, 0, 1), 2.4), False)
sketch4.addGeometry(Part.Circle(Vector(368.3, 0, 0), Vector(0, 0, 1), 2.4), False)
sketch4.addGeometry(Part.Circle(Vector(368.3, 38.1, 0), Vector(0, 0, 1), 2.4), False)
sketch4.addGeometry(Part.Circle(Vector(368.3, 76.2, 0), Vector(0, 0, 1), 2.4), False)
sketch4.addConstraint(Sketcher.Constraint("Equal", 0, 1))
sketch4.addConstraint(Sketcher.Constraint("Equal", 1, 2))
sketch4.addConstraint(Sketcher.Constraint("Equal", 2, 3))
sketch4.addConstraint(Sketcher.Constraint("Equal", 3, 4))
sketch4.addConstraint(Sketcher.Constraint("Equal", 4, 5))
sketch4.addConstraint(Sketcher.Constraint("Equal", 5, 6))
sketch4.addConstraint(Sketcher.Constraint("Equal", 6, 7))
sketch4.addConstraint(Sketcher.Constraint("Equal", 7, 8))
sketch4.addConstraint(Sketcher.Constraint("Equal", 8, 9))
sketch4.addConstraint(Sketcher.Constraint("Symmetric", 0, 3, 5, 3, -1, 1))
sketch4.addConstraint(Sketcher.Constraint("Symmetric", 1, 3, 6, 3, -1, 1))
sketch4.addConstraint(Sketcher.Constraint("Symmetric", 2, 3, 7, 3, -1, 1))
sketch4.addConstraint(Sketcher.Constraint("Symmetric", 3, 3, 8, 3, -1, 1))
sketch4.addConstraint(Sketcher.Constraint("Symmetric", 4, 3, 9, 3, -1, 1))
sketch4.addConstraint(Sketcher.Constraint("Symmetric", 4, 3, 5, 3, -2))
sketch4.addConstraint(Sketcher.Constraint("Symmetric", 3, 3, 6, 3, -2))
sketch4.addConstraint(Sketcher.Constraint("PointOnObject", 2, 3, -1))
sketch4.addConstraint(Sketcher.Constraint("Vertical", 0, 3, 1, 3))
sketch4.addConstraint(Sketcher.Constraint("Vertical", 1, 3, 2, 3))
sketch4.addConstraint(Sketcher.Constraint("Diameter", 0, Q("0.19 in")))
sketch4.addConstraint(Sketcher.Constraint("DistanceY", -1, 1, 0, 3, Q("3 in")))
sketch4.addConstraint(Sketcher.Constraint("DistanceY", 3, 3, 1, 3, Q("3 in")))
sketch4.addConstraint(Sketcher.Constraint("DistanceX", 4, 3, 5, 3, Q("29 in")))
pocket1 = body.newObject("PartDesign::Pocket", "Pocket")
pocket1.Profile = sketch4
pocket1.Type = "ThroughAll"

doc.recompute()
